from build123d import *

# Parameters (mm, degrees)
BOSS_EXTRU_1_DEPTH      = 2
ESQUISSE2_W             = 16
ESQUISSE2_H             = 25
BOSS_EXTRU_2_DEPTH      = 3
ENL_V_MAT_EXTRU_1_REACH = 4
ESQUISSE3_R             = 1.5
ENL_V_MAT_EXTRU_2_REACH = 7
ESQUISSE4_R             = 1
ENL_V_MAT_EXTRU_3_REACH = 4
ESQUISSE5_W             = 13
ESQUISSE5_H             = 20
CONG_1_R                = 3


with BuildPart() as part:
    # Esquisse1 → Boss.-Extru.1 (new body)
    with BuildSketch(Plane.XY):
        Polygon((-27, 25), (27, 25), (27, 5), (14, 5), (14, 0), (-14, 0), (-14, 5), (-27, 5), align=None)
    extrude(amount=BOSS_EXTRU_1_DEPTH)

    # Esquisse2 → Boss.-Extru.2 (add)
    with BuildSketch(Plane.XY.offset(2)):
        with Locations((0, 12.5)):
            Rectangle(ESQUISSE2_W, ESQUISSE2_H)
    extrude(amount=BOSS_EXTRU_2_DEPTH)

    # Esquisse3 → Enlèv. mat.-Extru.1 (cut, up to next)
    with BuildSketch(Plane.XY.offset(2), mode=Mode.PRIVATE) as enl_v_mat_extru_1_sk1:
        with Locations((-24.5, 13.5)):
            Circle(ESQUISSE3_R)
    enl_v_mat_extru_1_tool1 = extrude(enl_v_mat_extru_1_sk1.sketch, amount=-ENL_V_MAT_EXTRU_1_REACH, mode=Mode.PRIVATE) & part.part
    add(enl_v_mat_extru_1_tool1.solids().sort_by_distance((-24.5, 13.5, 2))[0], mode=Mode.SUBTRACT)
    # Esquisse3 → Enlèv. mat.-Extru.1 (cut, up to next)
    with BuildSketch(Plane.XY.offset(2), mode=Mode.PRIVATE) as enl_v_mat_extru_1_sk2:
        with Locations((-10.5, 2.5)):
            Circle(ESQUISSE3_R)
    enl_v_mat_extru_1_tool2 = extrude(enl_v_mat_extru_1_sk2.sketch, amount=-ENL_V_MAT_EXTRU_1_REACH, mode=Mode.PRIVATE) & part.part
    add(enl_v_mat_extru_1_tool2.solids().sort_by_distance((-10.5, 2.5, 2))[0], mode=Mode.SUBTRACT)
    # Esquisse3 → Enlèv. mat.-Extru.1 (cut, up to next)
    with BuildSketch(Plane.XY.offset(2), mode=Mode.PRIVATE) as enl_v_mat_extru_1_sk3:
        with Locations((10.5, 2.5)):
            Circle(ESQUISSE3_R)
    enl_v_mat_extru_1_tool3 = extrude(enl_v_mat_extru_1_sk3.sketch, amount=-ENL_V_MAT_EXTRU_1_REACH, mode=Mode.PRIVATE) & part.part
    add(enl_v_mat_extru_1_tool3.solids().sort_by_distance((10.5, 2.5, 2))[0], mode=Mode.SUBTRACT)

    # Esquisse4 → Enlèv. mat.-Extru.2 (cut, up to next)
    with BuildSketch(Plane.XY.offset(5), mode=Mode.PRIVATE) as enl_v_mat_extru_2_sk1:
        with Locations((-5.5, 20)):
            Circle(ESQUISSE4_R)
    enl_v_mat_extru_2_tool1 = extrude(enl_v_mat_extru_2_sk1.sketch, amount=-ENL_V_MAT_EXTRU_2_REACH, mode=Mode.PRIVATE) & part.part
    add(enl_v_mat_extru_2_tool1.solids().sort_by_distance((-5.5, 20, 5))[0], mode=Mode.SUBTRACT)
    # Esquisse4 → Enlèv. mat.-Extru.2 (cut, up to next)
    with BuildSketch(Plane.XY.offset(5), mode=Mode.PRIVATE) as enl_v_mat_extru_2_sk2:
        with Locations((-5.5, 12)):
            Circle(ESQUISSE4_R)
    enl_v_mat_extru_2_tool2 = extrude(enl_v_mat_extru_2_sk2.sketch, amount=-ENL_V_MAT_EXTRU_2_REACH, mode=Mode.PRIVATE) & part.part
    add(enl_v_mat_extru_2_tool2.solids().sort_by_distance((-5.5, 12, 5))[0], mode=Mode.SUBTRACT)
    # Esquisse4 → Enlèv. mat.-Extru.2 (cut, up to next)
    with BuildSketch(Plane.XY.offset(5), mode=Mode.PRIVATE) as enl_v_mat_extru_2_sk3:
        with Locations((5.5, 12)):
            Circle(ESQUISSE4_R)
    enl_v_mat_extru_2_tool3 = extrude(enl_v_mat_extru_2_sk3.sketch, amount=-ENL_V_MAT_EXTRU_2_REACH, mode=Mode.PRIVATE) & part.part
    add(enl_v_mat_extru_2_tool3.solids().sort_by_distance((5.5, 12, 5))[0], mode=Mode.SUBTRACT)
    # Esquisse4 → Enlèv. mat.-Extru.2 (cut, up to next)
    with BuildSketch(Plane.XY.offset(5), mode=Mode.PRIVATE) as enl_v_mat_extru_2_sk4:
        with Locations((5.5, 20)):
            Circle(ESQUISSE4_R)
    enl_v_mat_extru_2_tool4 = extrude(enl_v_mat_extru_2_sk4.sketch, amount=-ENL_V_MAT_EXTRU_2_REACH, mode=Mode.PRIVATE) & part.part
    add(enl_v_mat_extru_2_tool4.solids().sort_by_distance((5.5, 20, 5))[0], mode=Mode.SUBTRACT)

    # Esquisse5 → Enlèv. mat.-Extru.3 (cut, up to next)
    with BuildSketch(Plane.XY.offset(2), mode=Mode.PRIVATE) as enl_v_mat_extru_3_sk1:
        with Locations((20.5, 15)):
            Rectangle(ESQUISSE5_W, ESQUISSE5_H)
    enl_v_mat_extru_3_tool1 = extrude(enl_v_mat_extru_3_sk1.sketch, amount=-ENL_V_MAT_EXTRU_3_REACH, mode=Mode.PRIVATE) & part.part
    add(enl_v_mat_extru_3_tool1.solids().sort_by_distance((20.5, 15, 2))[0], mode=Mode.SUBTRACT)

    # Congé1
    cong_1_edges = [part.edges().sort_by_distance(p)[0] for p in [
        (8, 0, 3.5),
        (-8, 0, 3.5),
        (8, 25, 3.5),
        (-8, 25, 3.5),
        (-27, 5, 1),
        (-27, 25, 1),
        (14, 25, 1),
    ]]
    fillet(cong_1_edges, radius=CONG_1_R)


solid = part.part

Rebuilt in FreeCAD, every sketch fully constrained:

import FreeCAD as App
import Part
import Sketcher

V = App.Vector


def edges_at(feature, points):
    """Names of the edges that pass closest to the given points."""
    edges = feature.Shape.Edges
    near = lambda p: min(range(len(edges)), key=lambda i: edges[i].distToShape(Part.Vertex(*p))[0])
    return sorted({f"Edge{near(p) + 1}" for p in points})

doc = App.newDocument("Part")
body = doc.addObject("PartDesign::Body", "Body")

# Sketch on XY plane
sketch1 = doc.addObject("Sketcher::SketchObject", "Sketch")
body.addObject(sketch1)
sketch1.AttachmentSupport = (doc.XY_Plane, [""])
sketch1.MapMode = "FlatFace"
sketch1.addGeometry(Part.LineSegment(V(27, 25, 0), V(-27, 25, 0)), False)
sketch1.addGeometry(Part.LineSegment(V(-27, 25, 0), V(-27, 5, 0)), False)
sketch1.addGeometry(Part.LineSegment(V(-27, 5, 0), V(-14, 5, 0)), False)
sketch1.addGeometry(Part.LineSegment(V(-14, 5, 0), V(-14, 0, 0)), False)
sketch1.addGeometry(Part.LineSegment(V(-14, 0, 0), V(14, 0, 0)), False)
sketch1.addGeometry(Part.LineSegment(V(14, 0, 0), V(14, 5, 0)), False)
sketch1.addGeometry(Part.LineSegment(V(14, 5, 0), V(27, 5, 0)), False)
sketch1.addGeometry(Part.LineSegment(V(27, 5, 0), V(27, 25, 0)), False)
sketch1.addConstraint(Sketcher.Constraint("Coincident", 0, 2, 1, 1))
sketch1.addConstraint(Sketcher.Constraint("Coincident", 1, 2, 2, 1))
sketch1.addConstraint(Sketcher.Constraint("Coincident", 2, 2, 3, 1))
sketch1.addConstraint(Sketcher.Constraint("Coincident", 3, 2, 4, 1))
sketch1.addConstraint(Sketcher.Constraint("Coincident", 4, 2, 5, 1))
sketch1.addConstraint(Sketcher.Constraint("Coincident", 5, 2, 6, 1))
sketch1.addConstraint(Sketcher.Constraint("Coincident", 6, 2, 7, 1))
sketch1.addConstraint(Sketcher.Constraint("Coincident", 7, 2, 0, 1))
sketch1.addConstraint(Sketcher.Constraint("Horizontal", 0))
sketch1.addConstraint(Sketcher.Constraint("Vertical", 1))
sketch1.addConstraint(Sketcher.Constraint("Horizontal", 2))
sketch1.addConstraint(Sketcher.Constraint("Vertical", 3))
sketch1.addConstraint(Sketcher.Constraint("Horizontal", 4))
sketch1.addConstraint(Sketcher.Constraint("Vertical", 5))
sketch1.addConstraint(Sketcher.Constraint("Horizontal", 6))
sketch1.addConstraint(Sketcher.Constraint("Vertical", 7))
sketch1.addConstraint(Sketcher.Constraint("Symmetric", 3, 2, 4, 2, -1, 1))
sketch1.addConstraint(Sketcher.Constraint("Symmetric", 1, 2, 6, 2, -2))
sketch1.addConstraint(Sketcher.Constraint("DistanceX", 0, 2, 0, 1, 54.0))
sketch1.addConstraint(Sketcher.Constraint("DistanceX", 2, 1, 2, 2, 13.0))
sketch1.addConstraint(Sketcher.Constraint("DistanceY", 1, 2, 1, 1, 20.0))
sketch1.addConstraint(Sketcher.Constraint("DistanceY", 3, 2, 3, 1, 5.0))
pad1 = doc.addObject("PartDesign::Pad", "Pad")
body.addObject(pad1)
pad1.Profile = sketch1
pad1.Length = 2

# Sketch on XY plane
sketch2 = doc.addObject("Sketcher::SketchObject", "Sketch001")
body.addObject(sketch2)
sketch2.AttachmentSupport = (doc.XY_Plane, [""])
sketch2.MapMode = "FlatFace"
sketch2.AttachmentOffset = App.Placement(V(0, 0, 2), App.Rotation())
sketch2.addGeometry(Part.LineSegment(V(-8, 25, 0), V(-8, 0, 0)), False)
sketch2.addGeometry(Part.LineSegment(V(-8, 0, 0), V(8, 0, 0)), False)
sketch2.addGeometry(Part.LineSegment(V(8, 0, 0), V(8, 25, 0)), False)
sketch2.addGeometry(Part.LineSegment(V(8, 25, 0), V(-8, 25, 0)), False)
sketch2.addConstraint(Sketcher.Constraint("Coincident", 0, 2, 1, 1))
sketch2.addConstraint(Sketcher.Constraint("Coincident", 1, 2, 2, 1))
sketch2.addConstraint(Sketcher.Constraint("Coincident", 2, 2, 3, 1))
sketch2.addConstraint(Sketcher.Constraint("Coincident", 3, 2, 0, 1))
sketch2.addConstraint(Sketcher.Constraint("Vertical", 0))
sketch2.addConstraint(Sketcher.Constraint("Horizontal", 1))
sketch2.addConstraint(Sketcher.Constraint("Vertical", 2))
sketch2.addConstraint(Sketcher.Constraint("Horizontal", 3))
sketch2.addConstraint(Sketcher.Constraint("Symmetric", 0, 2, 1, 2, -1, 1))
sketch2.addConstraint(Sketcher.Constraint("DistanceX", 1, 1, 1, 2, 16.0))
sketch2.addConstraint(Sketcher.Constraint("DistanceY", 0, 2, 0, 1, 25.0))
pad2 = doc.addObject("PartDesign::Pad", "Pad001")
body.addObject(pad2)
pad2.Profile = sketch2
pad2.Length = 3

# Sketch on XY plane
sketch3 = doc.addObject("Sketcher::SketchObject", "Sketch002")
body.addObject(sketch3)
sketch3.AttachmentSupport = (doc.XY_Plane, [""])
sketch3.MapMode = "FlatFace"
sketch3.AttachmentOffset = App.Placement(V(0, 0, 2), App.Rotation())
sketch3.addGeometry(Part.Circle(V(-24.5, 13.5, 0), V(0, 0, 1), 1.5), False)
sketch3.addConstraint(Sketcher.Constraint("Diameter", 0, 3.0))
sketch3.addConstraint(Sketcher.Constraint("DistanceX", 0, 3, -1, 1, 24.5))
sketch3.addConstraint(Sketcher.Constraint("DistanceY", -1, 1, 0, 3, 13.5))
pocket1 = doc.addObject("PartDesign::Pocket", "Pocket")
body.addObject(pocket1)
pocket1.Profile = sketch3
pocket1.Type = "UpToFirst"

# Sketch on XY plane
sketch4 = doc.addObject("Sketcher::SketchObject", "Sketch003")
body.addObject(sketch4)
sketch4.AttachmentSupport = (doc.XY_Plane, [""])
sketch4.MapMode = "FlatFace"
sketch4.AttachmentOffset = App.Placement(V(0, 0, 2), App.Rotation())
sketch4.addGeometry(Part.Circle(V(-10.5, 2.5, 0), V(0, 0, 1), 1.5), False)
sketch4.addConstraint(Sketcher.Constraint("Diameter", 0, 3.0))
sketch4.addConstraint(Sketcher.Constraint("DistanceX", 0, 3, -1, 1, 10.5))
sketch4.addConstraint(Sketcher.Constraint("DistanceY", -1, 1, 0, 3, 2.5))
pocket2 = doc.addObject("PartDesign::Pocket", "Pocket001")
body.addObject(pocket2)
pocket2.Profile = sketch4
pocket2.Type = "UpToFirst"

# Sketch on XY plane
sketch5 = doc.addObject("Sketcher::SketchObject", "Sketch004")
body.addObject(sketch5)
sketch5.AttachmentSupport = (doc.XY_Plane, [""])
sketch5.MapMode = "FlatFace"
sketch5.AttachmentOffset = App.Placement(V(0, 0, 2), App.Rotation())
sketch5.addGeometry(Part.Circle(V(10.5, 2.5, 0), V(0, 0, 1), 1.5), False)
sketch5.addConstraint(Sketcher.Constraint("Diameter", 0, 3.0))
sketch5.addConstraint(Sketcher.Constraint("DistanceX", -1, 1, 0, 3, 10.5))
sketch5.addConstraint(Sketcher.Constraint("DistanceY", -1, 1, 0, 3, 2.5))
pocket3 = doc.addObject("PartDesign::Pocket", "Pocket002")
body.addObject(pocket3)
pocket3.Profile = sketch5
pocket3.Type = "UpToFirst"

# Sketch on XY plane
sketch6 = doc.addObject("Sketcher::SketchObject", "Sketch005")
body.addObject(sketch6)
sketch6.AttachmentSupport = (doc.XY_Plane, [""])
sketch6.MapMode = "FlatFace"
sketch6.AttachmentOffset = App.Placement(V(0, 0, 5), App.Rotation())
sketch6.addGeometry(Part.Circle(V(-5.5, 20, 0), V(0, 0, 1), 1), False)
sketch6.addConstraint(Sketcher.Constraint("Diameter", 0, 2.0))
sketch6.addConstraint(Sketcher.Constraint("DistanceY", -1, 1, 0, 3, 20.0))
sketch6.addConstraint(Sketcher.Constraint("DistanceX", 0, 3, -1, 1, 5.5))
pocket4 = doc.addObject("PartDesign::Pocket", "Pocket003")
body.addObject(pocket4)
pocket4.Profile = sketch6
pocket4.Type = "UpToFirst"

# Sketch on XY plane
sketch7 = doc.addObject("Sketcher::SketchObject", "Sketch006")
body.addObject(sketch7)
sketch7.AttachmentSupport = (doc.XY_Plane, [""])
sketch7.MapMode = "FlatFace"
sketch7.AttachmentOffset = App.Placement(V(0, 0, 5), App.Rotation())
sketch7.addGeometry(Part.Circle(V(-5.5, 12, 0), V(0, 0, 1), 1), False)
sketch7.addConstraint(Sketcher.Constraint("Diameter", 0, 2.0))
sketch7.addConstraint(Sketcher.Constraint("DistanceY", -1, 1, 0, 3, 12.0))
sketch7.addConstraint(Sketcher.Constraint("DistanceX", 0, 3, -1, 1, 5.5))
pocket5 = doc.addObject("PartDesign::Pocket", "Pocket004")
body.addObject(pocket5)
pocket5.Profile = sketch7
pocket5.Type = "UpToFirst"

# Sketch on XY plane
sketch8 = doc.addObject("Sketcher::SketchObject", "Sketch007")
body.addObject(sketch8)
sketch8.AttachmentSupport = (doc.XY_Plane, [""])
sketch8.MapMode = "FlatFace"
sketch8.AttachmentOffset = App.Placement(V(0, 0, 5), App.Rotation())
sketch8.addGeometry(Part.Circle(V(5.5, 12, 0), V(0, 0, 1), 1), False)
sketch8.addConstraint(Sketcher.Constraint("Diameter", 0, 2.0))
sketch8.addConstraint(Sketcher.Constraint("DistanceY", -1, 1, 0, 3, 12.0))
sketch8.addConstraint(Sketcher.Constraint("DistanceX", -1, 1, 0, 3, 5.5))
pocket6 = doc.addObject("PartDesign::Pocket", "Pocket005")
body.addObject(pocket6)
pocket6.Profile = sketch8
pocket6.Type = "UpToFirst"

# Sketch on XY plane
sketch9 = doc.addObject("Sketcher::SketchObject", "Sketch008")
body.addObject(sketch9)
sketch9.AttachmentSupport = (doc.XY_Plane, [""])
sketch9.MapMode = "FlatFace"
sketch9.AttachmentOffset = App.Placement(V(0, 0, 5), App.Rotation())
sketch9.addGeometry(Part.Circle(V(5.5, 20, 0), V(0, 0, 1), 1), False)
sketch9.addConstraint(Sketcher.Constraint("Diameter", 0, 2.0))
sketch9.addConstraint(Sketcher.Constraint("DistanceY", -1, 1, 0, 3, 20.0))
sketch9.addConstraint(Sketcher.Constraint("DistanceX", -1, 1, 0, 3, 5.5))
pocket7 = doc.addObject("PartDesign::Pocket", "Pocket006")
body.addObject(pocket7)
pocket7.Profile = sketch9
pocket7.Type = "UpToFirst"

# Sketch on XY plane
sketch10 = doc.addObject("Sketcher::SketchObject", "Sketch009")
body.addObject(sketch10)
sketch10.AttachmentSupport = (doc.XY_Plane, [""])
sketch10.MapMode = "FlatFace"
sketch10.AttachmentOffset = App.Placement(V(0, 0, 2), App.Rotation())
sketch10.addGeometry(Part.LineSegment(V(14, 25, 0), V(14, 5, 0)), False)
sketch10.addGeometry(Part.LineSegment(V(14, 5, 0), V(27, 5, 0)), False)
sketch10.addGeometry(Part.LineSegment(V(27, 5, 0), V(27, 25, 0)), False)
sketch10.addGeometry(Part.LineSegment(V(27, 25, 0), V(14, 25, 0)), False)
sketch10.addConstraint(Sketcher.Constraint("Coincident", 0, 2, 1, 1))
sketch10.addConstraint(Sketcher.Constraint("Coincident", 1, 2, 2, 1))
sketch10.addConstraint(Sketcher.Constraint("Coincident", 2, 2, 3, 1))
sketch10.addConstraint(Sketcher.Constraint("Coincident", 3, 2, 0, 1))
sketch10.addConstraint(Sketcher.Constraint("Vertical", 0))
sketch10.addConstraint(Sketcher.Constraint("Horizontal", 1))
sketch10.addConstraint(Sketcher.Constraint("Vertical", 2))
sketch10.addConstraint(Sketcher.Constraint("Horizontal", 3))
sketch10.addConstraint(Sketcher.Constraint("DistanceX", 1, 1, 1, 2, 13.0))
sketch10.addConstraint(Sketcher.Constraint("DistanceY", 0, 2, 0, 1, 20.0))
sketch10.addConstraint(Sketcher.Constraint("DistanceX", -1, 1, 0, 2, 14.0))
sketch10.addConstraint(Sketcher.Constraint("DistanceY", -1, 1, 0, 2, 5.0))
pocket8 = doc.addObject("PartDesign::Pocket", "Pocket007")
body.addObject(pocket8)
pocket8.Profile = sketch10
pocket8.Type = "UpToFirst"
doc.recompute()

fillet = doc.addObject("PartDesign::Fillet", "Fillet")
body.addObject(fillet)
fillet.Base = (pocket8, edges_at(pocket8, [
    (8, 0, 3.5),
    (-8, 0, 3.5),
    (8, 25, 3.5),
    (-8, 25, 3.5),
    (-27, 5, 1),
    (-27, 25, 1),
    (14, 25, 1),
]))
fillet.Radius = 3

doc.recompute()
